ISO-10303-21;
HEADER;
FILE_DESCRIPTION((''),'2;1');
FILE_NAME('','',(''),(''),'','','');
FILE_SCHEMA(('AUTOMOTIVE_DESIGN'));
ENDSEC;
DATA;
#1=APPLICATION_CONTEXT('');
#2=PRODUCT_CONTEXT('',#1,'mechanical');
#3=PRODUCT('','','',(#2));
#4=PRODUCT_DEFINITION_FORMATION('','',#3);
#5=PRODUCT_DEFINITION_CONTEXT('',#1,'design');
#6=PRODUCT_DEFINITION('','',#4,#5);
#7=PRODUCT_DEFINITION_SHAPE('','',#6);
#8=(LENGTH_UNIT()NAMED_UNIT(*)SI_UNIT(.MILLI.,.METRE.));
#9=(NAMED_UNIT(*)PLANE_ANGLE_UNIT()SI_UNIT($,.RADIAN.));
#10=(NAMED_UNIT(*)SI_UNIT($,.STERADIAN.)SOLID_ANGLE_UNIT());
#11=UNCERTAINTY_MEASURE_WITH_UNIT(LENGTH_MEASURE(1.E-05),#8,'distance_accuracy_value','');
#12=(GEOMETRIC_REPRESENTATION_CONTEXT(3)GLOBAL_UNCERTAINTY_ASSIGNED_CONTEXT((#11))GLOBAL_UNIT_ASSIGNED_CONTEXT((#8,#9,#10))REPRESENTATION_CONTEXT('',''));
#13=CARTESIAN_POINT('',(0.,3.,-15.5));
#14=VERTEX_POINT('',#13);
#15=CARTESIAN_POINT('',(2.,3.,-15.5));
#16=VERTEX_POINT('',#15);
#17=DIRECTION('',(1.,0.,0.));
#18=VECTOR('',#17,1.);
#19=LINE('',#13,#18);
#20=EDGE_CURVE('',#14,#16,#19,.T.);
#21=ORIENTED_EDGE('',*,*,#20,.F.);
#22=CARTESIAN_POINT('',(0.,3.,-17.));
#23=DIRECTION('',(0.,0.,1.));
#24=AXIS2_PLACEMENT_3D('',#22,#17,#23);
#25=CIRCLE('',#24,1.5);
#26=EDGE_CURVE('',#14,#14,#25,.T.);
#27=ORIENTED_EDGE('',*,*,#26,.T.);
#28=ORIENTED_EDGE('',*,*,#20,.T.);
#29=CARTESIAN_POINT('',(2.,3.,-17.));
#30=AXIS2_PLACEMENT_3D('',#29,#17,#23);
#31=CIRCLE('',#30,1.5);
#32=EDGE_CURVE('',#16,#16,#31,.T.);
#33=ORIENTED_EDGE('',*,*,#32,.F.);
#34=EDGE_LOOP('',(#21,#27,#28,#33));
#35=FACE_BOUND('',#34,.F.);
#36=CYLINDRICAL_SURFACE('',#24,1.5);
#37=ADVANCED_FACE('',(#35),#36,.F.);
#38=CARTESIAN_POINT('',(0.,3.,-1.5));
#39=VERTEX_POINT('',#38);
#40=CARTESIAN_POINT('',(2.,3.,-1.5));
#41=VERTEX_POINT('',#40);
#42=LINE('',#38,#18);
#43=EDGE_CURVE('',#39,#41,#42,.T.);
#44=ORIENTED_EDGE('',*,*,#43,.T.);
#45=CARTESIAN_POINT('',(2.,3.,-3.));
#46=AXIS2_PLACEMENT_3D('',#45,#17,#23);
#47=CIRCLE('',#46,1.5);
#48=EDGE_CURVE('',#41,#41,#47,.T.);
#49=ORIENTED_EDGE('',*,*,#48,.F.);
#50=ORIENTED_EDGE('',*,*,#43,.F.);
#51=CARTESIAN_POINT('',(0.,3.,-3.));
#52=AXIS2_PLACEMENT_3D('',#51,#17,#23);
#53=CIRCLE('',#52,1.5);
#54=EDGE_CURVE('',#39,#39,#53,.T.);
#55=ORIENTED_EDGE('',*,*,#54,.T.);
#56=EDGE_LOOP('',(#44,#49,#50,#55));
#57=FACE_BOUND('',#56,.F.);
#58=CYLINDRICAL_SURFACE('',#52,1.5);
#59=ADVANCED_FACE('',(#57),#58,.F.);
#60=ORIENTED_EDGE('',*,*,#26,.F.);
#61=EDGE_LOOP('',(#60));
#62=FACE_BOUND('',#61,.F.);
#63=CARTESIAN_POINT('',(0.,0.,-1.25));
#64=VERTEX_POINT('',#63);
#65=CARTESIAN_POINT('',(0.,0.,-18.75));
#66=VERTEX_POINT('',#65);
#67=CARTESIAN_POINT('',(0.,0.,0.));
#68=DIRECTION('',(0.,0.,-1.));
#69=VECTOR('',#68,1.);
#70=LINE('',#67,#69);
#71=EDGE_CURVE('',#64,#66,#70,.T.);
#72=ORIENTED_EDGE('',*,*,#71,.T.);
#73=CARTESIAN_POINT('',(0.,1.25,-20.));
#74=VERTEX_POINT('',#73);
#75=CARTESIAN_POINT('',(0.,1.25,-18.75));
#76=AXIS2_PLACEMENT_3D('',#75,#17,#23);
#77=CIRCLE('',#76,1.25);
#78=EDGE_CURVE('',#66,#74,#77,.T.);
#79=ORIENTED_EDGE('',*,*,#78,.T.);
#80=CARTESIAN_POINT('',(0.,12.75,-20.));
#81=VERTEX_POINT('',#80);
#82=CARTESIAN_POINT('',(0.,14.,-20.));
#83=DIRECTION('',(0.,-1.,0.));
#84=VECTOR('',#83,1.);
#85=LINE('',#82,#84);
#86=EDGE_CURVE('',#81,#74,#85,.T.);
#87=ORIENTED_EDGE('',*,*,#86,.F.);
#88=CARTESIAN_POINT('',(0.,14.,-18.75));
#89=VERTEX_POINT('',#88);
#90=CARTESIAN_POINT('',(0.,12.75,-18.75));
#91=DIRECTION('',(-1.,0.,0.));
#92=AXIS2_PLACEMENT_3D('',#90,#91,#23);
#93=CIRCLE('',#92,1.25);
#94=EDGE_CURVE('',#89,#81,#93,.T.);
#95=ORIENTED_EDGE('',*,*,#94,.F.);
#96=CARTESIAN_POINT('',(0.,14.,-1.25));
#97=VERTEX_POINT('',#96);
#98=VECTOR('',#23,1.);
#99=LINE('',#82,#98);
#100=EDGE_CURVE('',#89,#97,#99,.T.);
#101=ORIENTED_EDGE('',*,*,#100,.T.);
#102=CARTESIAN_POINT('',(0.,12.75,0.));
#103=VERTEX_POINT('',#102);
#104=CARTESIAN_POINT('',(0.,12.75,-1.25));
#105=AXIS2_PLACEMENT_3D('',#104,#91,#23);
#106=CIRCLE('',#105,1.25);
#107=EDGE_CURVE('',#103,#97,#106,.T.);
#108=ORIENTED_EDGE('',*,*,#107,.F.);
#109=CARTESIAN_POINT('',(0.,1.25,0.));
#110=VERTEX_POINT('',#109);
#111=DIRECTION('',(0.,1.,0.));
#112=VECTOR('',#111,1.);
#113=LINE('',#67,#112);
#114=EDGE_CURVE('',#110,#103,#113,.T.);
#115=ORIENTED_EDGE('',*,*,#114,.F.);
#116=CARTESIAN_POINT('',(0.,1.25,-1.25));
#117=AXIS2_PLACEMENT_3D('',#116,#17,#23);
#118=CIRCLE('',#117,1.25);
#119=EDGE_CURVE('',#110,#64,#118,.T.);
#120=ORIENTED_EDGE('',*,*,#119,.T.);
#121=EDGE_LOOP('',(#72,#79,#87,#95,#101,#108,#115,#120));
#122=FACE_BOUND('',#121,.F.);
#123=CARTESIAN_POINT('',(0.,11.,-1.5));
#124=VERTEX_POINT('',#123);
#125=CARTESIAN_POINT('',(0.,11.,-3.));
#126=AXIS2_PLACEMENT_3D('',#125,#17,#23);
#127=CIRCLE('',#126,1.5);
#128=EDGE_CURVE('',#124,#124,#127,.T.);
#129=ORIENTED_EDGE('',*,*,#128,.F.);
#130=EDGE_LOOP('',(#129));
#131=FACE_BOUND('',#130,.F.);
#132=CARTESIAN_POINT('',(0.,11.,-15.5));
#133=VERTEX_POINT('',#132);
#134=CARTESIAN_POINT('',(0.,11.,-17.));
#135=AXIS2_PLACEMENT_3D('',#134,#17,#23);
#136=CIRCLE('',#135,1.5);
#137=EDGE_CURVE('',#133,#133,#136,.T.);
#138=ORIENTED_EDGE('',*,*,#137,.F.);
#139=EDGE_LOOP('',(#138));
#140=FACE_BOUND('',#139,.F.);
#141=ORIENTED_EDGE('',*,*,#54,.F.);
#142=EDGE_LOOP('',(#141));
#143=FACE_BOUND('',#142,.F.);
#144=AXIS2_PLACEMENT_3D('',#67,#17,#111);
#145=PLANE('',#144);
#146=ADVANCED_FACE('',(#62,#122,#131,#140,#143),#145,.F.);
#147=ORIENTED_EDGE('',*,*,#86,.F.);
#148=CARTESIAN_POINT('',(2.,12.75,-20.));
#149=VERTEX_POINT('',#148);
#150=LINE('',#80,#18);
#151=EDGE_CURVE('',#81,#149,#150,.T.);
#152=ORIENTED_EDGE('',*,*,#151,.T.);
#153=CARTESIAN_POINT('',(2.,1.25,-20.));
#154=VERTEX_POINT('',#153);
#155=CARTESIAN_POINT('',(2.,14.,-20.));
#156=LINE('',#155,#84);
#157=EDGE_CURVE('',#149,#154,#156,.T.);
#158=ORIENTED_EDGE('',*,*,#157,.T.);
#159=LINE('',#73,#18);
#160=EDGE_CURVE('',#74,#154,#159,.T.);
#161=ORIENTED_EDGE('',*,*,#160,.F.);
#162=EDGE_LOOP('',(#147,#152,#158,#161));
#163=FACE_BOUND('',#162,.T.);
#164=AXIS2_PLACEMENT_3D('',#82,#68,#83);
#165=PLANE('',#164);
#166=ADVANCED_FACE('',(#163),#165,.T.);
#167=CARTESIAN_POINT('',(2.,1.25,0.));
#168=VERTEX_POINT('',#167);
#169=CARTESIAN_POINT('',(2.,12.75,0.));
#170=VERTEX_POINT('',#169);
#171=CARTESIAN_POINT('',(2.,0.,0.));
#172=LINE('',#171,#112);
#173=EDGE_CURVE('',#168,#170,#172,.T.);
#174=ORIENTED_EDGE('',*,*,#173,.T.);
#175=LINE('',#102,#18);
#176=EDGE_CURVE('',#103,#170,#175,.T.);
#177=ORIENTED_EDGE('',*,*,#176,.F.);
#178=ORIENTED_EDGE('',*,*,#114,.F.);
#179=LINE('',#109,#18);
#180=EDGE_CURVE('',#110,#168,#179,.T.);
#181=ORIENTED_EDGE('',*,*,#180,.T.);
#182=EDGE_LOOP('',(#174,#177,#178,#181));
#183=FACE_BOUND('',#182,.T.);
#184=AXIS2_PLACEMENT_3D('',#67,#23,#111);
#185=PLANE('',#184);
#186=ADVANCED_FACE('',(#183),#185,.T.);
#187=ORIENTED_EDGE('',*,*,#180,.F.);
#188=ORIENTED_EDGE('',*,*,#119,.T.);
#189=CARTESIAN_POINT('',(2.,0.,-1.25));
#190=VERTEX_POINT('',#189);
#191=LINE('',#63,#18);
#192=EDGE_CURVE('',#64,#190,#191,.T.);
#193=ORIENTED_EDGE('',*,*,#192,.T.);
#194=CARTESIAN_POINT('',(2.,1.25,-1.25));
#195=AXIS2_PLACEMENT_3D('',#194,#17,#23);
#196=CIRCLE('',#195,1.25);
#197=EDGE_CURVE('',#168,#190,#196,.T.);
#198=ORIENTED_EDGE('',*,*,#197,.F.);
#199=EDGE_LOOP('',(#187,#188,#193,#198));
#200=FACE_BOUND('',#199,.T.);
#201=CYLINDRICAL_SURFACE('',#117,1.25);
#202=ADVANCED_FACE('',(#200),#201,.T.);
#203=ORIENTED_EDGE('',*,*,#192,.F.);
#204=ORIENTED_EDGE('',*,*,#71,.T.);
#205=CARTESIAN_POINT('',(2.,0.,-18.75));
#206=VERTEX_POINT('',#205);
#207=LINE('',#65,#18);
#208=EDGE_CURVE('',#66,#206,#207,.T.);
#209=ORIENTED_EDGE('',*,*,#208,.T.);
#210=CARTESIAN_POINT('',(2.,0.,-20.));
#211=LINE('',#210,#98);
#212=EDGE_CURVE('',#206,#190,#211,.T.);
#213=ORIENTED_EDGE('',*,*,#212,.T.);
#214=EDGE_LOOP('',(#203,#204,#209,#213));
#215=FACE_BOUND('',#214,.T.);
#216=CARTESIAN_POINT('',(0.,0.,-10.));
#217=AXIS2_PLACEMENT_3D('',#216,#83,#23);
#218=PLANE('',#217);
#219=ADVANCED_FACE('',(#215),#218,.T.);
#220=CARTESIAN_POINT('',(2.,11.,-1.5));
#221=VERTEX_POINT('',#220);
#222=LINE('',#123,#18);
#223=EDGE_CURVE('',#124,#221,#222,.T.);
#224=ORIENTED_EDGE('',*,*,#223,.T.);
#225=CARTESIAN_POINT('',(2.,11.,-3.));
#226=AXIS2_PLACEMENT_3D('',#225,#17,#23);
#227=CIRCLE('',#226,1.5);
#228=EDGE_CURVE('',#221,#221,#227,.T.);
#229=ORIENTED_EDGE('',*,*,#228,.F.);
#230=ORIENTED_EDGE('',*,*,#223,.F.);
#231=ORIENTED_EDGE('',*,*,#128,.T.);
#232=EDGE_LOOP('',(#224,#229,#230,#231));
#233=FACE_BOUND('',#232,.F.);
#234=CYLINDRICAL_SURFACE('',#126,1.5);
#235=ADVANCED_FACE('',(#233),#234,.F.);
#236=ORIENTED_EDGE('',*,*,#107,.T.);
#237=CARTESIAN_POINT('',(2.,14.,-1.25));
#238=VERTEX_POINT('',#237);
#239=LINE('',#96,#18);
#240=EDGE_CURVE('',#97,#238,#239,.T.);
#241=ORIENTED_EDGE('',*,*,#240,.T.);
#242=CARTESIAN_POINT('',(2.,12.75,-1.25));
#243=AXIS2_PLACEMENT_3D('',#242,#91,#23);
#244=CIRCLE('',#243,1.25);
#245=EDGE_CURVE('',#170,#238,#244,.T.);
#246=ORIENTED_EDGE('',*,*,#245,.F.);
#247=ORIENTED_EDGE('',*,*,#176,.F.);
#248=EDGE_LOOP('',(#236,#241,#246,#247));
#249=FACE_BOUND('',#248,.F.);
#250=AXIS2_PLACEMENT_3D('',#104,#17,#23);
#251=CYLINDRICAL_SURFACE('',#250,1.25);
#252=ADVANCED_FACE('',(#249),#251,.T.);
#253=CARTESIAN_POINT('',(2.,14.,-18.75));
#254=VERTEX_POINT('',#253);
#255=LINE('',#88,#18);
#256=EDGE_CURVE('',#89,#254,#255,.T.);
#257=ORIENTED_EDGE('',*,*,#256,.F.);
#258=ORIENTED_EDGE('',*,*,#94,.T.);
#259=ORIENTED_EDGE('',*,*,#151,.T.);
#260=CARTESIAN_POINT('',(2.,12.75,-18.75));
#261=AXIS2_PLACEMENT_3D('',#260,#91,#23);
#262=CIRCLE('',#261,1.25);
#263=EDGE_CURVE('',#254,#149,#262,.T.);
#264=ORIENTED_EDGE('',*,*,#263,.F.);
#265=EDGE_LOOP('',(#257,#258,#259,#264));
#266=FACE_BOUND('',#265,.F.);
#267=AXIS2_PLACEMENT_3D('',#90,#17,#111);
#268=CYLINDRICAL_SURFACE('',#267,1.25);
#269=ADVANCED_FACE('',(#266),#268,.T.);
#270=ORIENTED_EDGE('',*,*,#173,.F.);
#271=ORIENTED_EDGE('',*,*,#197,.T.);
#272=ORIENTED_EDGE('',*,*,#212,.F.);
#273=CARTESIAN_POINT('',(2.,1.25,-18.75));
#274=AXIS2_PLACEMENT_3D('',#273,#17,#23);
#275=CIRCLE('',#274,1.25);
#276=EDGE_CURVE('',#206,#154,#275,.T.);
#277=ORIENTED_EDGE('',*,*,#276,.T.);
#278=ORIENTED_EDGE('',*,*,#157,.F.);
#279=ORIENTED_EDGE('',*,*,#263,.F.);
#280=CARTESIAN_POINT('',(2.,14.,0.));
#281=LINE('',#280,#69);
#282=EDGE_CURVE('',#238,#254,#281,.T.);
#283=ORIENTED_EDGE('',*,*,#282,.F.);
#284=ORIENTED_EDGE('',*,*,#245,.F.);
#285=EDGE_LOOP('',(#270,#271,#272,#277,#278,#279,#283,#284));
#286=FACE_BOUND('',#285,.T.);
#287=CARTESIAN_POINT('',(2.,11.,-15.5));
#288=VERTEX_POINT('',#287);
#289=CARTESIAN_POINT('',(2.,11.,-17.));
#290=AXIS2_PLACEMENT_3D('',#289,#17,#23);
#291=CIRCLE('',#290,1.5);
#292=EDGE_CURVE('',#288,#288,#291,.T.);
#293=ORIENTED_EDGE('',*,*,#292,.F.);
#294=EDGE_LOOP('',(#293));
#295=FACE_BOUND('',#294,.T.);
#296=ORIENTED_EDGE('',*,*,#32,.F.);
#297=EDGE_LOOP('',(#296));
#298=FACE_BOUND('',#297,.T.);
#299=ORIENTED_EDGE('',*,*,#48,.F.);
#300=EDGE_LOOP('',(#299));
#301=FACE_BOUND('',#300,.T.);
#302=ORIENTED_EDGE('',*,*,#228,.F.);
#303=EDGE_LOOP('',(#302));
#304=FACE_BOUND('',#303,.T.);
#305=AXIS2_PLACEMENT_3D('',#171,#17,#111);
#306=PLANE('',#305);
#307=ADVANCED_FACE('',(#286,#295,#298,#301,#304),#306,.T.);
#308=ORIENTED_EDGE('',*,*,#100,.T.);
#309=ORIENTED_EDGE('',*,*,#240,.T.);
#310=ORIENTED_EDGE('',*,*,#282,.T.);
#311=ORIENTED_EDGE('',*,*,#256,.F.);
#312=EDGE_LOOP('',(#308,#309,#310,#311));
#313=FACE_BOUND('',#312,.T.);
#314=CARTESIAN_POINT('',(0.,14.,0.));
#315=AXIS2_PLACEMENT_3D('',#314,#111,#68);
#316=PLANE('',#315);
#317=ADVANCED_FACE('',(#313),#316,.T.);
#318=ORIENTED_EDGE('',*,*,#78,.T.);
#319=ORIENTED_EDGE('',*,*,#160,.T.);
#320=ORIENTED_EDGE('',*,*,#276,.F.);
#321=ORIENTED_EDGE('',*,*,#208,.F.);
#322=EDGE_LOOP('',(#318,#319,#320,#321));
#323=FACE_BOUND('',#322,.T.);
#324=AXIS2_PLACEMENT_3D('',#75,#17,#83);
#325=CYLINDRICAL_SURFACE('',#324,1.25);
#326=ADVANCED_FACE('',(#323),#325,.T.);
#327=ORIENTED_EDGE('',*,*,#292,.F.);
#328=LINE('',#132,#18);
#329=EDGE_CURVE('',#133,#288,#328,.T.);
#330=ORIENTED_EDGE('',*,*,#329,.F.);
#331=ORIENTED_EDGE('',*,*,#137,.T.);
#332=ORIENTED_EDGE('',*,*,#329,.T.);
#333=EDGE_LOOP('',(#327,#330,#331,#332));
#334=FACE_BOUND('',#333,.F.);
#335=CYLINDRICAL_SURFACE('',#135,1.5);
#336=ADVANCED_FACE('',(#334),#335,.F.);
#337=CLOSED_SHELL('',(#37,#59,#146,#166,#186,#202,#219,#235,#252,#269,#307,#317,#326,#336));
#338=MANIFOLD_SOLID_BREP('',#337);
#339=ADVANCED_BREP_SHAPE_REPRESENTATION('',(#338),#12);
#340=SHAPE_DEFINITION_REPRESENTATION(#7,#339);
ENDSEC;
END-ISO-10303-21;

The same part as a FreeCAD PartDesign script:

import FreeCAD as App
import Part
import Sketcher
from FreeCAD import Vector
Q = App.Units.Quantity


def edges_at(feature, points):
    """Names of the edges that pass closest to the given points."""
    edges = feature.Shape.Edges
    near = lambda p: min(range(len(edges)), key=lambda i: edges[i].distToShape(Part.Vertex(*p))[0])
    return sorted({f"Edge{near(p) + 1}" for p in points})

doc = App.newDocument("Part")
body = doc.addObject("PartDesign::Body", "Body")

# Sketch on YZ plane
sketch1 = body.newObject("Sketcher::SketchObject", "Sketch")
sketch1.AttachmentSupport = (doc.getObject("YZ_Plane"), [""])
sketch1.MapMode = "FlatFace"
sketch1.addGeometry(Part.LineSegment(Vector(14, 0, 0), Vector(0, 0, 0)), False)
sketch1.addGeometry(Part.LineSegment(Vector(0, 0, 0), Vector(0, -20, 0)), False)
sketch1.addGeometry(Part.LineSegment(Vector(0, -20, 0), Vector(14, -20, 0)), False)
sketch1.addGeometry(Part.LineSegment(Vector(14, -20, 0), Vector(14, 0, 0)), False)
sketch1.addConstraint(Sketcher.Constraint("Coincident", 0, 2, 1, 1))
sketch1.addConstraint(Sketcher.Constraint("Coincident", 1, 2, 2, 1))
sketch1.addConstraint(Sketcher.Constraint("Coincident", 2, 2, 3, 1))
sketch1.addConstraint(Sketcher.Constraint("Coincident", 3, 2, 0, 1))
sketch1.addConstraint(Sketcher.Constraint("Horizontal", 0))
sketch1.addConstraint(Sketcher.Constraint("Vertical", 1))
sketch1.addConstraint(Sketcher.Constraint("Horizontal", 2))
sketch1.addConstraint(Sketcher.Constraint("Vertical", 3))
sketch1.addConstraint(Sketcher.Constraint("Coincident", 0, 2, -1, 1))
sketch1.addConstraint(Sketcher.Constraint("DistanceX", 0, 2, 0, 1, Q("14 mm")))
sketch1.addConstraint(Sketcher.Constraint("DistanceY", 1, 2, 1, 1, Q("20 mm")))
pad1 = body.newObject("PartDesign::Pad", "Pad")
pad1.Profile = sketch1
pad1.Length = 2

# Sketch on YZ plane
sketch2 = body.newObject("Sketcher::SketchObject", "Sketch001")
sketch2.AttachmentSupport = (doc.getObject("YZ_Plane"), [""])
sketch2.MapMode = "FlatFace"
sketch2.addGeometry(Part.Circle(Vector(11, -3, 0), Vector(0, 0, 1), 1.5), False)
sketch2.addGeometry(Part.Circle(Vector(3, -3, 0), Vector(0, 0, 1), 1.5), False)
sketch2.addGeometry(Part.Circle(Vector(11, -17, 0), Vector(0, 0, 1), 1.5), False)
sketch2.addGeometry(Part.Circle(Vector(3, -17, 0), Vector(0, 0, 1), 1.5), False)
sketch2.addConstraint(Sketcher.Constraint("Equal", 0, 1))
sketch2.addConstraint(Sketcher.Constraint("Equal", 1, 2))
sketch2.addConstraint(Sketcher.Constraint("Equal", 2, 3))
sketch2.addConstraint(Sketcher.Constraint("Horizontal", 0, 3, 1, 3))
sketch2.addConstraint(Sketcher.Constraint("Horizontal", 2, 3, 3, 3))
sketch2.addConstraint(Sketcher.Constraint("Vertical", 0, 3, 2, 3))
sketch2.addConstraint(Sketcher.Constraint("Vertical", 1, 3, 3, 3))
sketch2.addConstraint(Sketcher.Constraint("Diameter", 0, Q("3 mm")))
sketch2.addConstraint(Sketcher.Constraint("DistanceX", -1, 1, 0, 3, Q("11 mm")))
sketch2.addConstraint(Sketcher.Constraint("DistanceY", 0, 3, -1, 1, Q("3 mm")))
sketch2.addConstraint(Sketcher.Constraint("DistanceX", -1, 1, 1, 3, Q("3 mm")))
sketch2.addConstraint(Sketcher.Constraint("DistanceY", 2, 3, -1, 1, Q("17 mm")))
doc.recompute()
hole = body.newObject("PartDesign::Hole", "Hole")
hole.Profile = sketch2
hole.ThreadType = "None"
hole.Diameter = 3
hole.DepthType = "Dimension"
hole.Depth = 80.45
hole.DrillPoint = "Flat"
hole.Reversed = True
doc.recompute()

fillet = body.newObject("PartDesign::Fillet", "Fillet")
fillet.Base = (hole, edges_at(hole, [
    (1, 14, 0),
    (1, 14, -20),
    (1, 0, -20),
    (1, 0, 0),
]))
fillet.Radius = 1.25

doc.recompute()
